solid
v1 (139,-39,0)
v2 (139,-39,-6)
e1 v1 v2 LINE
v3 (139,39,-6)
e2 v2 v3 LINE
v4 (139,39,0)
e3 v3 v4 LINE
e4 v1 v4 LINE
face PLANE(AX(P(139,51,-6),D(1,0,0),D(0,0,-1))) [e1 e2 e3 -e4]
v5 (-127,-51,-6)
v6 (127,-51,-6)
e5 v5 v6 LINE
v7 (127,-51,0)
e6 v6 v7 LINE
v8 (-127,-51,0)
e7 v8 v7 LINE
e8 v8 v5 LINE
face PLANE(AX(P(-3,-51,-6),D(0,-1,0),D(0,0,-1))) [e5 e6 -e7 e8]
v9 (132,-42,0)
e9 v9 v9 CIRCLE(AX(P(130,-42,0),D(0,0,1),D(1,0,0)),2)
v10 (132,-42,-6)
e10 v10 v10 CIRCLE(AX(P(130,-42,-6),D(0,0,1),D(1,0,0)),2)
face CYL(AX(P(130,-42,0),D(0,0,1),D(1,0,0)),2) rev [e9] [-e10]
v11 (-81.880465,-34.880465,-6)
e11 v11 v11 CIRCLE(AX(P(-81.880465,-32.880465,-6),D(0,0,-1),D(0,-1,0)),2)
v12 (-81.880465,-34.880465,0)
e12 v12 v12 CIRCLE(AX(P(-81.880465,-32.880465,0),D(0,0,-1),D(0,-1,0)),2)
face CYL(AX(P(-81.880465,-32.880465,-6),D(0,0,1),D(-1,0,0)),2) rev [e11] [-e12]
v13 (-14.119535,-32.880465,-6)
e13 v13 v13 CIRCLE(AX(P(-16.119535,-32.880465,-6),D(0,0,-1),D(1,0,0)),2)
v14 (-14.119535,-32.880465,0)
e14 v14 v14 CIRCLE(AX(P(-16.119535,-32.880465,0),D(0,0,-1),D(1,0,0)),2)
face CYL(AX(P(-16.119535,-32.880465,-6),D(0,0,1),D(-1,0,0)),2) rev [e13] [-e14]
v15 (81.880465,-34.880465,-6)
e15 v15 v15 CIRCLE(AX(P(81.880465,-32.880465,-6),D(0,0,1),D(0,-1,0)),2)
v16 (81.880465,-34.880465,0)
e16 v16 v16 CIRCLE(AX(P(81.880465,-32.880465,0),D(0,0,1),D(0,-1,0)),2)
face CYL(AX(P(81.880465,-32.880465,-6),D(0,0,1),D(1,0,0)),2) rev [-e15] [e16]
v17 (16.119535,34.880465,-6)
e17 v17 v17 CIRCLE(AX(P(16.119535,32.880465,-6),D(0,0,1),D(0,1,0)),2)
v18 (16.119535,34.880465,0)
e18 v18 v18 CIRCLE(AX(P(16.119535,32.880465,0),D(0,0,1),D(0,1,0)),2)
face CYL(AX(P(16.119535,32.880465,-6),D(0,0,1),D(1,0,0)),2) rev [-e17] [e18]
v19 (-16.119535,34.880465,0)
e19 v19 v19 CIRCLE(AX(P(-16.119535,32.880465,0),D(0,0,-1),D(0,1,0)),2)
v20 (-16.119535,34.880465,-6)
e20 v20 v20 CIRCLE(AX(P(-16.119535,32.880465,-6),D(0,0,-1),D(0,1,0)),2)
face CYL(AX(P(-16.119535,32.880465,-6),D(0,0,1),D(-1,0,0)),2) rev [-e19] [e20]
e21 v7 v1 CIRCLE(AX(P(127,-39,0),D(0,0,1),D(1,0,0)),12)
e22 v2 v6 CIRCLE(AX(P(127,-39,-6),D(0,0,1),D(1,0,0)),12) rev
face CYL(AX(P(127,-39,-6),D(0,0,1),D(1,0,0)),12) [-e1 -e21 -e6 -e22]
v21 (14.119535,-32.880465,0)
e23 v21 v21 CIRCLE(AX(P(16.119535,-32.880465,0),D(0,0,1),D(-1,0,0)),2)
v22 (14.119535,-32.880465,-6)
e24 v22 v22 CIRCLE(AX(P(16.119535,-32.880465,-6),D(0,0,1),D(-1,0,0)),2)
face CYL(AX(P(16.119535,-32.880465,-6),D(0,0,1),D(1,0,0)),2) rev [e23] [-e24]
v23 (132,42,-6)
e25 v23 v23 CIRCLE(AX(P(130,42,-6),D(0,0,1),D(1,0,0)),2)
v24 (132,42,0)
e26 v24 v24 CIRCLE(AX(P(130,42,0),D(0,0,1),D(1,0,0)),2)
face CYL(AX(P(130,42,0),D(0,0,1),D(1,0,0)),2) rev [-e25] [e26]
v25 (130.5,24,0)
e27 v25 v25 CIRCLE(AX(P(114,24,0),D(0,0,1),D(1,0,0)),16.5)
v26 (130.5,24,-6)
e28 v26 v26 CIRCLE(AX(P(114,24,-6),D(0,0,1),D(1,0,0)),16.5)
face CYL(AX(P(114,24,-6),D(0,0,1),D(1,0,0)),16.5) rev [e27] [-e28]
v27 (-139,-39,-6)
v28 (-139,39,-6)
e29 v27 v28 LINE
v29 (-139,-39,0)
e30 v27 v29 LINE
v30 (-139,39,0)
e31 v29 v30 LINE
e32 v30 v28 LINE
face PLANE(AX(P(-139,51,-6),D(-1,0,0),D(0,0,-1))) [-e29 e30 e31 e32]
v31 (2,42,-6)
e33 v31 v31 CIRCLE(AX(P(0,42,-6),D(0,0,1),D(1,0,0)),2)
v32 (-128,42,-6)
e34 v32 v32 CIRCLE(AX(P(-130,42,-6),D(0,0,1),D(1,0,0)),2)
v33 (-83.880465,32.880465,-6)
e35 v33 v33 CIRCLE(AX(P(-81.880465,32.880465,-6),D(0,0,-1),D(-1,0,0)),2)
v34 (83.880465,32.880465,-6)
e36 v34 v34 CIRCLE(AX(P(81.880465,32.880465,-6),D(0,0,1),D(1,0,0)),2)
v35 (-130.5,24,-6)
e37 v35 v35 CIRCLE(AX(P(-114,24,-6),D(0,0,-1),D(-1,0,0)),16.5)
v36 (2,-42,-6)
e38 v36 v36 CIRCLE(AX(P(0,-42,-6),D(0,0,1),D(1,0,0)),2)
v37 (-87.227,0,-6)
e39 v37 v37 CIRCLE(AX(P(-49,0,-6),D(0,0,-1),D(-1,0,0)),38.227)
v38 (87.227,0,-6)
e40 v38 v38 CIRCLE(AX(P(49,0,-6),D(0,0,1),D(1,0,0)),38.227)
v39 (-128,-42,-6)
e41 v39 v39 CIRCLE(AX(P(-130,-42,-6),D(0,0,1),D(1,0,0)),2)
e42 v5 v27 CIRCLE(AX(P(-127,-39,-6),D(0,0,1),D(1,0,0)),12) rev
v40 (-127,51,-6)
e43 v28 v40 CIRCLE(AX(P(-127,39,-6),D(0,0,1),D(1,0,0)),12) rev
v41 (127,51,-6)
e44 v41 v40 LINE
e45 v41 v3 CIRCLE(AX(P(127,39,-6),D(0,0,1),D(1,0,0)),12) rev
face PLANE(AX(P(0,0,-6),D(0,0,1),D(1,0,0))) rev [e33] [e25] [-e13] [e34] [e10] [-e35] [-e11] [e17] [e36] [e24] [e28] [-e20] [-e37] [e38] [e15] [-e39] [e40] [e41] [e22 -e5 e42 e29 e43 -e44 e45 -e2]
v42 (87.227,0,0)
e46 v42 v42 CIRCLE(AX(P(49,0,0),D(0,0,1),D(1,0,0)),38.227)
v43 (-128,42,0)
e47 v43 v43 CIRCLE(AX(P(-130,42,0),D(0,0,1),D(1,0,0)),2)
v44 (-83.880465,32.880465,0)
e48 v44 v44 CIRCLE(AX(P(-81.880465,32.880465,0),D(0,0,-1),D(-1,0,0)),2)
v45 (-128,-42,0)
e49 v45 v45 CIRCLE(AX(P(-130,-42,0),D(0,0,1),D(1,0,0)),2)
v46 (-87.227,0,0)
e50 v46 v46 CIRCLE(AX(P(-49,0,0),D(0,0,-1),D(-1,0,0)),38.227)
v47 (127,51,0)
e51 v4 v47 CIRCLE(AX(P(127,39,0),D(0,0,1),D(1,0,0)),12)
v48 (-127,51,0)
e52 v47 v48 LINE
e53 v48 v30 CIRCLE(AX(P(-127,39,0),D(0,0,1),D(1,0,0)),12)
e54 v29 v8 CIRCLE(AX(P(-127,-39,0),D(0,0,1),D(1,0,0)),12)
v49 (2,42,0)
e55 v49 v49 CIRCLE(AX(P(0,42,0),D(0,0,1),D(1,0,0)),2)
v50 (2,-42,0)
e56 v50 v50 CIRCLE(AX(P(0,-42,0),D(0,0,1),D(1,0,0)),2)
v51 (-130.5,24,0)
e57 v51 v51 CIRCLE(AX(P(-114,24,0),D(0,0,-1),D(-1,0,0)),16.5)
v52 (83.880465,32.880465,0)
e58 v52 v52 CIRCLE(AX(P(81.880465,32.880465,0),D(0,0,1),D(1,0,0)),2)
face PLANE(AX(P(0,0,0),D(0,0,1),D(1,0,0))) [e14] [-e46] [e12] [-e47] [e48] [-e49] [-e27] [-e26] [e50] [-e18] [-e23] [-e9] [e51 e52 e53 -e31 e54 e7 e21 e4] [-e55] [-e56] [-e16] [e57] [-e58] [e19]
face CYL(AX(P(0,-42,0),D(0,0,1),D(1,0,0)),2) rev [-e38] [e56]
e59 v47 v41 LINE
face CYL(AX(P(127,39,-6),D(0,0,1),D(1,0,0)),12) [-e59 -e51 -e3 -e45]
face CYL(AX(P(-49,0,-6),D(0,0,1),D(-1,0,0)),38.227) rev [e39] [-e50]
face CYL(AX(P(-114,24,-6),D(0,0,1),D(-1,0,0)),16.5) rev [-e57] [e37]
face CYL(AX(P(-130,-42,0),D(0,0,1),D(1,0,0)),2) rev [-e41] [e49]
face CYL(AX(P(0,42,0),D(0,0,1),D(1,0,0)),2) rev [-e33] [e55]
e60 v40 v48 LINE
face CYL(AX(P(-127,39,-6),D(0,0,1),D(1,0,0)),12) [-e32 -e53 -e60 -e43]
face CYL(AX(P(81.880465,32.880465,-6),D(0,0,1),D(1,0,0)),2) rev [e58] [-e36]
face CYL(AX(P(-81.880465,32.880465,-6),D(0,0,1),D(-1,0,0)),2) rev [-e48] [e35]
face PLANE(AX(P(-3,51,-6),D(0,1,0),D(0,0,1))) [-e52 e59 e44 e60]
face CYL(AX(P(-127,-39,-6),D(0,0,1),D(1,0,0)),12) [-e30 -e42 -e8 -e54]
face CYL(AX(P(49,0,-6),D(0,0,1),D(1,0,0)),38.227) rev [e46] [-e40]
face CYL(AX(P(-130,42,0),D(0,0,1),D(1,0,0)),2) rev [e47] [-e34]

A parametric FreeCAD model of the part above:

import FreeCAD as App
import Part
import Sketcher
Q = App.Units.Quantity


def edges_at(feature, points):
    """Names of the edges that pass closest to the given points."""
    edges = feature.Shape.Edges
    near = lambda p: min(range(len(edges)), key=lambda i: edges[i].distToShape(Part.Vertex(*p))[0])
    return sorted({f"Edge{near(p) + 1}" for p in points})

doc = App.newDocument("Part")
body = doc.addObject("PartDesign::Body", "Body")

# Sketch on XY plane
sketch1 = doc.addObject("Sketcher::SketchObject", "Sketch")
body.addObject(sketch1)
sketch1.AttachmentSupport = (doc.XY_Plane, [""])
sketch1.MapMode = "FlatFace"
sketch1.addGeometry([
    Part.LineSegment(App.Vector(-3, 51, 0), App.Vector(-3, -51, 0)),
    Part.LineSegment(App.Vector(-3, -51, 0), App.Vector(139, -51, 0)),
    Part.LineSegment(App.Vector(139, -51, 0), App.Vector(139, 51, 0)),
    Part.LineSegment(App.Vector(139, 51, 0), App.Vector(-3, 51, 0)),
], False)
sketch1.addConstraint([
    Sketcher.Constraint("Coincident", 0, 2, 1, 1),
    Sketcher.Constraint("Coincident", 1, 2, 2, 1),
    Sketcher.Constraint("Coincident", 2, 2, 3, 1),
    Sketcher.Constraint("Coincident", 3, 2, 0, 1),
    Sketcher.Constraint("Vertical", 0),
    Sketcher.Constraint("Horizontal", 1),
    Sketcher.Constraint("Vertical", 2),
    Sketcher.Constraint("Horizontal", 3),
    Sketcher.Constraint("DistanceX", 1, 1, 1, 2, Q("142 mm")),
    Sketcher.Constraint("DistanceY", 0, 2, 0, 1, Q("102 mm")),
    Sketcher.Constraint("DistanceX", 0, 2, -1, 1, Q("3 mm")),
    Sketcher.Constraint("DistanceY", 0, 2, -1, 1, Q("51 mm")),
])
pad1 = doc.addObject("PartDesign::Pad", "Pad")
body.addObject(pad1)
pad1.Profile = sketch1
pad1.Length = 6
pad1.Reversed = True

# Sketch on XY plane
sketch2 = doc.addObject("Sketcher::SketchObject", "Sketch001")
body.addObject(sketch2)
sketch2.AttachmentSupport = (doc.XY_Plane, [""])
sketch2.MapMode = "FlatFace"
sketch2.addGeometry(Part.Circle(App.Vector(49, 0, 0), App.Vector(0, 0, 1), 38), False)
sketch2.addConstraint([
    Sketcher.Constraint("PointOnObject", 0, 3, -1),
    Sketcher.Constraint("Diameter", 0, Q("76.454 mm")),
    Sketcher.Constraint("DistanceX", -1, 1, 0, 3, Q("49 mm")),
])
pocket1 = doc.addObject("PartDesign::Pocket", "Pocket")
body.addObject(pocket1)
pocket1.Profile = sketch2
pocket1.Type = "ThroughAll"

# Sketch on XY plane
sketch3 = doc.addObject("Sketcher::SketchObject", "Sketch002")
body.addObject(sketch3)
sketch3.AttachmentSupport = (doc.XY_Plane, [""])
sketch3.MapMode = "FlatFace"
sketch3.addGeometry(Part.Circle(App.Vector(81.9, 32.9, 0), App.Vector(0, 0, 1), 2), False)
sketch3.addConstraint([
    Sketcher.Constraint("Diameter", 0, Q("4 mm")),
    Sketcher.Constraint("DistanceX", -1, 1, 0, 3, Q("81.880465 mm")),
    Sketcher.Constraint("DistanceY", -1, 1, 0, 3, Q("32.880465 mm")),
])
pocket2 = doc.addObject("PartDesign::Pocket", "Pocket001")
body.addObject(pocket2)
pocket2.Profile = sketch3
pocket2.Type = "ThroughAll"
doc.recompute()

datumline = doc.addObject("PartDesign::Line", "DatumLine")
body.addObject(datumline)
datumline.Placement = App.Placement(App.Vector(49, 0, 0), App.Rotation(App.Vector(0, 0, 1), App.Vector(0, 0, 1)))
polarpattern = doc.addObject("PartDesign::PolarPattern", "PolarPattern")
body.addObject(polarpattern)
polarpattern.Originals = [pocket2]
polarpattern.Axis = (datumline, [""])
polarpattern.Angle = 360
polarpattern.Occurrences = 4
body.Tip = polarpattern

# Sketch on XY plane
sketch4 = doc.addObject("Sketcher::SketchObject", "Sketch003")
body.addObject(sketch4)
sketch4.AttachmentSupport = (doc.XY_Plane, [""])
sketch4.MapMode = "FlatFace"
sketch4.addGeometry(Part.Circle(App.Vector(114, 24, 0), App.Vector(0, 0, 1), 16), False)
sketch4.addConstraint([
    Sketcher.Constraint("Diameter", 0, Q("33 mm")),
    Sketcher.Constraint("DistanceX", -1, 1, 0, 3, Q("114 mm")),
    Sketcher.Constraint("DistanceY", -1, 1, 0, 3, Q("24 mm")),
])
pocket3 = doc.addObject("PartDesign::Pocket", "Pocket002")
body.addObject(pocket3)
pocket3.Profile = sketch4
pocket3.Type = "ThroughAll"
body2 = doc.addObject("PartDesign::Body", "Body001")
doc.recompute()

body2.BaseFeature = body
doc.recompute()

mirroring = doc.addObject("Part::Mirroring", "Mirroring")
mirroring.Source = body
mirroring.Base = App.Vector(0, 0, 0)
mirroring.Normal = App.Vector(1, 0, 0)
body3 = doc.addObject("PartDesign::Body", "Body002")
body3.BaseFeature = mirroring
boolean = doc.addObject("PartDesign::Boolean", "Boolean")
body2.addObject(boolean)
boolean.Type = "Fuse"
boolean.addObjects([body3])
doc.recompute()

fillet = doc.addObject("PartDesign::Fillet", "Fillet")
body2.addObject(fillet)
fillet.Base = (boolean, edges_at(boolean, [
    (-139, 51, -3),
    (-139, -51, -3),
    (139, 51, -3),
    (139, -51, -3),
]))
fillet.Radius = 12

# Sketch on XY plane
sketch5 = doc.addObject("Sketcher::SketchObject", "Sketch004")
body2.addObject(sketch5)
sketch5.AttachmentSupport = (doc.getObject("XY_Plane001"), [""])
sketch5.MapMode = "FlatFace"
sketch5.addGeometry([
    Part.Circle(App.Vector(-130, 42, 0), App.Vector(0, 0, 1), 2),  # 0
    Part.Circle(App.Vector(130, -42, 0), App.Vector(0, 0, 1), 2),  # 1
    Part.Circle(App.Vector(-130, -42, 0), App.Vector(0, 0, 1), 2),  # 2
    Part.Circle(App.Vector(130, 42, 0), App.Vector(0, 0, 1), 2),  # 3
    Part.Circle(App.Vector(0, 42, 0), App.Vector(0, 0, 1), 2),  # 4
    Part.Circle(App.Vector(0, -42, 0), App.Vector(0, 0, 1), 2),  # 5
], False)
sketch5.addConstraint([
    Sketcher.Constraint("Equal", 0, 1),
    Sketcher.Constraint("Equal", 1, 2),
    Sketcher.Constraint("Equal", 2, 3),
    Sketcher.Constraint("Equal", 3, 4),
    Sketcher.Constraint("Equal", 4, 5),
    Sketcher.Constraint("Symmetric", 0, 3, 1, 3, -1, 1),
    Sketcher.Constraint("Symmetric", 2, 3, 3, 3, -1, 1),
    Sketcher.Constraint("Symmetric", 4, 3, 5, 3, -1, 1),
    Sketcher.Constraint("Symmetric", 1, 3, 2, 3, -2),
    Sketcher.Constraint("PointOnObject", 4, 3, -2),
    Sketcher.Constraint("Horizontal", 3, 3, 4, 3),
    Sketcher.Constraint("Diameter", 0, Q("4 mm")),
    Sketcher.Constraint("DistanceX", 0, 3, -1, 1, Q("130 mm")),
    Sketcher.Constraint("DistanceY", -1, 1, 0, 3, Q("42 mm")),
])
doc.recompute()
hole = doc.addObject("PartDesign::Hole", "Hole")
body2.addObject(hole)
hole.Profile = sketch5
hole.ThreadType = "None"
hole.Diameter = 4
hole.DepthType = "ThroughAll"
mirroring.Visibility = False

doc.recompute()
